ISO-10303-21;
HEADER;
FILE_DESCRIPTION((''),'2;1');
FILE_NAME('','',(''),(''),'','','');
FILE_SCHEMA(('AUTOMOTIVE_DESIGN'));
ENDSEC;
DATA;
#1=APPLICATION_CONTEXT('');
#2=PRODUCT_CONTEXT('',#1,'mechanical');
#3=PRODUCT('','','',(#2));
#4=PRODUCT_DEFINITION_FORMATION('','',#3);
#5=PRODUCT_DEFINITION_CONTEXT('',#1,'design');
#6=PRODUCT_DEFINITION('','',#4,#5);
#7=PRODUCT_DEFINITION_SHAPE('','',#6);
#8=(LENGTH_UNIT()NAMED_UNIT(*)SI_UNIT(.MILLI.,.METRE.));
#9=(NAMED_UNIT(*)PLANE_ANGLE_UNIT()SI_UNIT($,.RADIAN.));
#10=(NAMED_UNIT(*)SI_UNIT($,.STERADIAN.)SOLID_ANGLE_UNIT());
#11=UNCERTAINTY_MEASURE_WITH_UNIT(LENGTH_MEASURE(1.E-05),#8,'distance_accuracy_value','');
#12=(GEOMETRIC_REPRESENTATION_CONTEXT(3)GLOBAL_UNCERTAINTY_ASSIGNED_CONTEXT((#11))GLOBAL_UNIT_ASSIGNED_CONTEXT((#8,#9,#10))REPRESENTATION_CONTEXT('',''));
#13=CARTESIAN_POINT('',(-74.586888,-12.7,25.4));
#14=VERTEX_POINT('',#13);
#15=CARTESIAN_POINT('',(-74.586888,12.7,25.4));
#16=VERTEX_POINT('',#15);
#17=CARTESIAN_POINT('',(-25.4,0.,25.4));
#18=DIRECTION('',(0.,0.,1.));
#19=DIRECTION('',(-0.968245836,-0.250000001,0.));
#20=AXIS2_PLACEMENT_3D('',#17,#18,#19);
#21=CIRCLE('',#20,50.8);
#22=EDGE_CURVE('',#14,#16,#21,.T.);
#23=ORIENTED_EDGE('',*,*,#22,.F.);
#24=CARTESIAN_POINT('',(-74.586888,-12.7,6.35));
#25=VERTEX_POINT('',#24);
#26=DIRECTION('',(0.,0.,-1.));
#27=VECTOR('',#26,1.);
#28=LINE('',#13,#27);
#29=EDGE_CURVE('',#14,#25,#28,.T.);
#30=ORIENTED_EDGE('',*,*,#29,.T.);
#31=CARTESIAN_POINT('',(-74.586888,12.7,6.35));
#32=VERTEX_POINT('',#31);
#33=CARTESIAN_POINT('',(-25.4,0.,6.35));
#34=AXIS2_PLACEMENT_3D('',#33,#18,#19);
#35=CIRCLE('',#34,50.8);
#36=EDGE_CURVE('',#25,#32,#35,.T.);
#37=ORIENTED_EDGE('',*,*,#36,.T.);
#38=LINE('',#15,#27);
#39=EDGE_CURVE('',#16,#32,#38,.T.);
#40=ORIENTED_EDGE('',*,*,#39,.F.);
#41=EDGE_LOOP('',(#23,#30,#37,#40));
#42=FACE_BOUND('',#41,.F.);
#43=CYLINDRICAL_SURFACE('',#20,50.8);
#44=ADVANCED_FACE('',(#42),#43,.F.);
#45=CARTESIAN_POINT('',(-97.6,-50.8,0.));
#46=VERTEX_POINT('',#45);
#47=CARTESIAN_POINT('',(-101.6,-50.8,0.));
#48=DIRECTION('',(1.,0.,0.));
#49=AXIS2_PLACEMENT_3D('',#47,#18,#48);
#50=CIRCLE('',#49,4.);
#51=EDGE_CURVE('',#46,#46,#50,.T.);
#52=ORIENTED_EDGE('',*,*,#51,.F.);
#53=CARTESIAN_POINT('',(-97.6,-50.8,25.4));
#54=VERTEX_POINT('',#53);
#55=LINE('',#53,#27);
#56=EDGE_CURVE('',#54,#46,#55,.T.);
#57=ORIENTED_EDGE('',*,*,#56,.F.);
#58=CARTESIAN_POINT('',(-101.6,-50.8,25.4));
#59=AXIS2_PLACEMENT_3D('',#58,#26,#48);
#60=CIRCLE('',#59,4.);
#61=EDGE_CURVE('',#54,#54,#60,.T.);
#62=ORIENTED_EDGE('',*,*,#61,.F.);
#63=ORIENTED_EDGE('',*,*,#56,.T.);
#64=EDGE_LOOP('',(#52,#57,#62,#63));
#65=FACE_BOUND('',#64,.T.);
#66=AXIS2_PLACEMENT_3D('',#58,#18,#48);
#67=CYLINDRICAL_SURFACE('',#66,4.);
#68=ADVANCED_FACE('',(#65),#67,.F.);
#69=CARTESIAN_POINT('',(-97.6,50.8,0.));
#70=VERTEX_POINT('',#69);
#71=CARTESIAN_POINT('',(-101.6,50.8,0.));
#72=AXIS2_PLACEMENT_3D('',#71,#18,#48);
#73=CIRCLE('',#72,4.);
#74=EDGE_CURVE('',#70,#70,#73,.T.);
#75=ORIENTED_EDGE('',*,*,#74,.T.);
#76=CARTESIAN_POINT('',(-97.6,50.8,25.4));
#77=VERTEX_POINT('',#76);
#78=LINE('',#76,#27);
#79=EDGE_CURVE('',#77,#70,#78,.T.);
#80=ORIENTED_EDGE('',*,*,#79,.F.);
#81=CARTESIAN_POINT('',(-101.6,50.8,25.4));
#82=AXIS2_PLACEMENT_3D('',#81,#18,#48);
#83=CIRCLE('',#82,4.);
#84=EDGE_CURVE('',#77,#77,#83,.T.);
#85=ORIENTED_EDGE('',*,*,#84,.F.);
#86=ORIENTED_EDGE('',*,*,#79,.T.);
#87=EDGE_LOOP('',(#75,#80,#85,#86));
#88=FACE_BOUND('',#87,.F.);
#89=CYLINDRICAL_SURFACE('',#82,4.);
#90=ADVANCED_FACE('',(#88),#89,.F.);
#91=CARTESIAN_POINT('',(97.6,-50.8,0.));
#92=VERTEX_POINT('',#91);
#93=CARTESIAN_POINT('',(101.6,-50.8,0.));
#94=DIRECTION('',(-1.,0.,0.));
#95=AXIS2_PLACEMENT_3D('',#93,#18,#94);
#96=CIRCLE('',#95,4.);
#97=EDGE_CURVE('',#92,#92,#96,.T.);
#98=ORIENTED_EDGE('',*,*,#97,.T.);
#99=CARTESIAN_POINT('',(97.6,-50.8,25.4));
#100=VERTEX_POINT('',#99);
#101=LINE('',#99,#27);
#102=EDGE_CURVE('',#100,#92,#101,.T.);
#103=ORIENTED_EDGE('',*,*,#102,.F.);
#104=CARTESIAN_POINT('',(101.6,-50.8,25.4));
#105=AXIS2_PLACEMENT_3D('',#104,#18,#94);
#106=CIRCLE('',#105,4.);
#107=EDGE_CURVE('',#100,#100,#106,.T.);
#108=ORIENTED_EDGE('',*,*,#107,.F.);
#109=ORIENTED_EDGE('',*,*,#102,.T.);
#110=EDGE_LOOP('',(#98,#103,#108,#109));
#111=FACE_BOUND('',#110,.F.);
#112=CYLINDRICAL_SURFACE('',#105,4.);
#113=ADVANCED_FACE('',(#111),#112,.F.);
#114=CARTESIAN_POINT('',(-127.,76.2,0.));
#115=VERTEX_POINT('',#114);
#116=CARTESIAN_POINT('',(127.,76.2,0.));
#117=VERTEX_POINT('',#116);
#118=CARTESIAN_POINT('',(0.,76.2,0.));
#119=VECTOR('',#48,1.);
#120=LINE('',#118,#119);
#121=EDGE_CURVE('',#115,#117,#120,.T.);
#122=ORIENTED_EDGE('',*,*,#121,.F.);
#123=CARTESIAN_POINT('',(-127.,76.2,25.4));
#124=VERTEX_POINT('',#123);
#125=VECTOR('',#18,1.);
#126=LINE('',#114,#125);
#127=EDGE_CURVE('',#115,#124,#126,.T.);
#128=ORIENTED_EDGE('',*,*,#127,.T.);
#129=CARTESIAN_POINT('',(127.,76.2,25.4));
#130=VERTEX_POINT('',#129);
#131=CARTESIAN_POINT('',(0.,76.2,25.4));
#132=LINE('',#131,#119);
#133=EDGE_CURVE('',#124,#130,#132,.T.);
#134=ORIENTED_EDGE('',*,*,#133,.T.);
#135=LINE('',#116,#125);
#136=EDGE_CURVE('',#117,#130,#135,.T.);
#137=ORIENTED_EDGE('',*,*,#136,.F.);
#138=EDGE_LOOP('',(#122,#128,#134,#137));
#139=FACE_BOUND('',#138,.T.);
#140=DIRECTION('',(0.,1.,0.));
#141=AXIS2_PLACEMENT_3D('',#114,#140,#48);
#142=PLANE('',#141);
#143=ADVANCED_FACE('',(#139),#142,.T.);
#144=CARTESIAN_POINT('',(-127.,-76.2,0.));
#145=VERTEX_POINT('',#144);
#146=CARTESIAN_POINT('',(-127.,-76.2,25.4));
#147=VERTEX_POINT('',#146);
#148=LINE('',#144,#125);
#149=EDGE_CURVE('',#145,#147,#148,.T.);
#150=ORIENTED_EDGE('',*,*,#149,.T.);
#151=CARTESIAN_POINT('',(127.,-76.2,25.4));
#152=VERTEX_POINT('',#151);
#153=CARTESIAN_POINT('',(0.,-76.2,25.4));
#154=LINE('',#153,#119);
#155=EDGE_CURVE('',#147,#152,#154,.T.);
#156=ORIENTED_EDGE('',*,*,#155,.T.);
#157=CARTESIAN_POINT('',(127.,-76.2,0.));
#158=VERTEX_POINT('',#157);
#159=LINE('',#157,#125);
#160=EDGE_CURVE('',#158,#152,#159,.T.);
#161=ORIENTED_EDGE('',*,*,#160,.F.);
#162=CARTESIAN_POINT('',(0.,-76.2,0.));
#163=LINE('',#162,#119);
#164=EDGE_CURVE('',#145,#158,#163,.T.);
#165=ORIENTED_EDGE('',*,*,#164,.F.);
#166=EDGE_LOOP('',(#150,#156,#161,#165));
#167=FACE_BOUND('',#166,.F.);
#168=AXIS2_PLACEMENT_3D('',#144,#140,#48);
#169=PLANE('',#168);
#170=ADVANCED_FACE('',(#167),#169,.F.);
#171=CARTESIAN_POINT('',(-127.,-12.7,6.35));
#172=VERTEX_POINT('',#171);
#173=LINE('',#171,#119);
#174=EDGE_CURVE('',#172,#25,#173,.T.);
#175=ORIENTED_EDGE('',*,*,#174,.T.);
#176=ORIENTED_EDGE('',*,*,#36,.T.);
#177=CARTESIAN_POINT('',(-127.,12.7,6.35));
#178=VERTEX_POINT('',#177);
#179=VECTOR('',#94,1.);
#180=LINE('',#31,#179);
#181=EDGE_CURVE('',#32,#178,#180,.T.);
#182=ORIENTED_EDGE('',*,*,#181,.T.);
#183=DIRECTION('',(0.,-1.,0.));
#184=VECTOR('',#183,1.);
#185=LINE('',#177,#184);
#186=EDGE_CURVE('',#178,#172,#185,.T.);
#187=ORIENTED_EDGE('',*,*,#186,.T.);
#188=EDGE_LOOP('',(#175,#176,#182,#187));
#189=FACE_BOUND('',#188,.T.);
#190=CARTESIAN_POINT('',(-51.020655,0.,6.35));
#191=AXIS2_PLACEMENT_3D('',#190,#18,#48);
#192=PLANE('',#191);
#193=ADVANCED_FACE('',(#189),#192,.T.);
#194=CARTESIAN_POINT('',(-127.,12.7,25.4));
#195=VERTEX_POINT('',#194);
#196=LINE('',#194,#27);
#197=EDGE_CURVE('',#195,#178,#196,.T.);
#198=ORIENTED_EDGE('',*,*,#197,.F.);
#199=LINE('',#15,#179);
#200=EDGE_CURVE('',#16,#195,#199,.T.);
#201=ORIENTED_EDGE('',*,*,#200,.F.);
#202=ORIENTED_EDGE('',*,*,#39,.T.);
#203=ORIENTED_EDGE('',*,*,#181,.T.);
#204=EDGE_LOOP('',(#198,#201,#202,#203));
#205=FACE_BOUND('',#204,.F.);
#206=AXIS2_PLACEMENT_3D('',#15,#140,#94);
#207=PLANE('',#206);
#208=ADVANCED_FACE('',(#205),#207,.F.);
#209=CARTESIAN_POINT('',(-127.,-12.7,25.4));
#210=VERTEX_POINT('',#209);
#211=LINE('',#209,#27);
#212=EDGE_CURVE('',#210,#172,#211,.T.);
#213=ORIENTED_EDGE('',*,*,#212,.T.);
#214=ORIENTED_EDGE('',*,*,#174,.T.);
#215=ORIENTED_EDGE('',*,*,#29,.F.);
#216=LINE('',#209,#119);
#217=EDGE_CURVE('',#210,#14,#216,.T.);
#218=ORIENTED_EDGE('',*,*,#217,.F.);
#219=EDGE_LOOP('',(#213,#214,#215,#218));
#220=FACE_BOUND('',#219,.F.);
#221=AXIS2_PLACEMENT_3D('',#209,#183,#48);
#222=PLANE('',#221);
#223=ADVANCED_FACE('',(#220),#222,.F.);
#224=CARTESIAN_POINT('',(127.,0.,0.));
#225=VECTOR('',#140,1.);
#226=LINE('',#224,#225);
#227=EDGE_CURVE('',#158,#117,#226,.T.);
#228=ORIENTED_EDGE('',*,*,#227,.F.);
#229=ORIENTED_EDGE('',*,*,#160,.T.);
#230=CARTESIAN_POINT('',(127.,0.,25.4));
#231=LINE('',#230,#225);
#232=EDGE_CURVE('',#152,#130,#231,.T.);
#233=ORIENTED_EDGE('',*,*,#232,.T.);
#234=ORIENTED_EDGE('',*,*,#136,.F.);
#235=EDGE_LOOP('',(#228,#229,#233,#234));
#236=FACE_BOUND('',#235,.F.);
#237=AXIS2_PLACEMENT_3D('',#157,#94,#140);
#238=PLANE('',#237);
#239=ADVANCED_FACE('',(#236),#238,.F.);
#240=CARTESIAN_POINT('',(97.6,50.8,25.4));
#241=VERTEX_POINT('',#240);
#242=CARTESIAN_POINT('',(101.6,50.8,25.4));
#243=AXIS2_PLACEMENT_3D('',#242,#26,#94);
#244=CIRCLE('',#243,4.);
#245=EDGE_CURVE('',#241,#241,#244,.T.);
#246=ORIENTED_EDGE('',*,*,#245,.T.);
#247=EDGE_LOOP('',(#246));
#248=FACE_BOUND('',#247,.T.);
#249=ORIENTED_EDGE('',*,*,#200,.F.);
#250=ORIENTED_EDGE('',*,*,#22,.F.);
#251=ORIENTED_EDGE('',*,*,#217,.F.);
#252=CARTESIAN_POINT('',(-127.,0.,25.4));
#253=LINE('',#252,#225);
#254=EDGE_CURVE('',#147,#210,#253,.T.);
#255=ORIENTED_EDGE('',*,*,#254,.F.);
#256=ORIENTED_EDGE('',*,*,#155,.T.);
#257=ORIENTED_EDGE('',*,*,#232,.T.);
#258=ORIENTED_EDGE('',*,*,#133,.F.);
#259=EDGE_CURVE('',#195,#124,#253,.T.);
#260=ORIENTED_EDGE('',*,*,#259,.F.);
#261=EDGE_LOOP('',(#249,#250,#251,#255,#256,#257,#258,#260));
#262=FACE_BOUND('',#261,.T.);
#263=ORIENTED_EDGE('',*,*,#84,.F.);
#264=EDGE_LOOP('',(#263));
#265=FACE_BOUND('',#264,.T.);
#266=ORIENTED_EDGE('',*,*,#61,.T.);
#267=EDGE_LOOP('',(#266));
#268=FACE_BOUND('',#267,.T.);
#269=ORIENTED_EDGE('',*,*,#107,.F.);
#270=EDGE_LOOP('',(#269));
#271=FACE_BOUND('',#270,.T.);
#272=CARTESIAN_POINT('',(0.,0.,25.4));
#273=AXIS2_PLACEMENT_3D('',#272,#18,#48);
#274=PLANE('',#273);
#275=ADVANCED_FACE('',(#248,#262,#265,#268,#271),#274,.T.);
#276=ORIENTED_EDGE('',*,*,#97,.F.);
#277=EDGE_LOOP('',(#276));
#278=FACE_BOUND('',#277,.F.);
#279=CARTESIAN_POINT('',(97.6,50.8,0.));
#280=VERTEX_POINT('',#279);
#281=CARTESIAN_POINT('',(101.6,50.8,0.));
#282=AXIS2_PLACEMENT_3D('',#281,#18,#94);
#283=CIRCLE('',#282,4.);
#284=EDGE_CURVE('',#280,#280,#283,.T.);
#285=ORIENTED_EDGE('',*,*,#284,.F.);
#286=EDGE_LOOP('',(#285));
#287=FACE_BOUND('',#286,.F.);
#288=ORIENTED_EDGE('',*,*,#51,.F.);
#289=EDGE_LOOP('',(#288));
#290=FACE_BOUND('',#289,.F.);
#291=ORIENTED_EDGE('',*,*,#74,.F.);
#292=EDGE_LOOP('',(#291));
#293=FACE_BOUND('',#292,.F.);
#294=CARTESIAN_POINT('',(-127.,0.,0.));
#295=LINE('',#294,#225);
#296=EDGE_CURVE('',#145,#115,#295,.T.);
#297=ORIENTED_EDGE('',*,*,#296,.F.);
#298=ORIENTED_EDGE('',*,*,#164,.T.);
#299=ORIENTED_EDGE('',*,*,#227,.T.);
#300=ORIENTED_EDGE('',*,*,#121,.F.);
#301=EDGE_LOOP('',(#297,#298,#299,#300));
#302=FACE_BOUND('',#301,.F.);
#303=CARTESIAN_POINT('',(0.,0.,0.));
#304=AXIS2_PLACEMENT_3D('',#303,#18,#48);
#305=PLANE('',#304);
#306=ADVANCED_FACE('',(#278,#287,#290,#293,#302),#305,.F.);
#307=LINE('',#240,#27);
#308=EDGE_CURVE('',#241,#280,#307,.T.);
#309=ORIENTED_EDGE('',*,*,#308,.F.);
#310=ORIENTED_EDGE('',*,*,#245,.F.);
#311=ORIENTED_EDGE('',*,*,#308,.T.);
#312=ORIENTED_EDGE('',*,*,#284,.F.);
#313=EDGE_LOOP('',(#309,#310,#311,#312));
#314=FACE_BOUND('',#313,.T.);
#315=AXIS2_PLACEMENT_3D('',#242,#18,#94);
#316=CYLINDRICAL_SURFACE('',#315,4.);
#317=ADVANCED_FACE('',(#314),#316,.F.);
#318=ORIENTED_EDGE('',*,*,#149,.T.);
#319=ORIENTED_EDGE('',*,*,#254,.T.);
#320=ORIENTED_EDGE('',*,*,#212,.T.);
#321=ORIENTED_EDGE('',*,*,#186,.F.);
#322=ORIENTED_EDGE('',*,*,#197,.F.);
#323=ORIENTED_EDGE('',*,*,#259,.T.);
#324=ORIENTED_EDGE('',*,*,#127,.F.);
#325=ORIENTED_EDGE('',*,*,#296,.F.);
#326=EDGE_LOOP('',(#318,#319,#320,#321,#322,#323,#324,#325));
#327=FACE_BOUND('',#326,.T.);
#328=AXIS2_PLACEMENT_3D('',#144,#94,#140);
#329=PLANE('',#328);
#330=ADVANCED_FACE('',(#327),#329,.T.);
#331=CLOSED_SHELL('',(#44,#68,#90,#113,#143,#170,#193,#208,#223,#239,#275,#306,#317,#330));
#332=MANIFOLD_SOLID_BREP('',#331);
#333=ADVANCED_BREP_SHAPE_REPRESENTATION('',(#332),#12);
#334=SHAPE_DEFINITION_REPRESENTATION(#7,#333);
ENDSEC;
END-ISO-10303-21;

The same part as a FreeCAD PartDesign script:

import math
import FreeCAD as App
import Part
import Sketcher
from FreeCAD import Vector
Q = App.Units.Quantity


def add_polygon(sketch, points):
    """Adds a closed chain of lines whose ends are joined by coincident constraints."""
    first, n = sketch.GeometryCount, len(points)
    for a, b in zip(points, points[1:] + points[:1]):
        sketch.addGeometry(Part.LineSegment(App.Vector(*a, 0), App.Vector(*b, 0)), False)
    for i in range(n):
        sketch.addConstraint(Sketcher.Constraint("Coincident", first + i, 2, first + (i + 1) % n, 1))

doc = App.newDocument("Part")
body = doc.addObject("PartDesign::Body", "Body")

sketch1 = body.newObject("Sketcher::SketchObject", "Sketch")
sketch1.AttachmentSupport = (doc.getObject("XY_Plane"), [""])
sketch1.MapMode = "FlatFace"
add_polygon(sketch1, [(-127, 76), (-127, -76), (127, -76), (127, 76)])
sketch1.addConstraint(Sketcher.Constraint("Vertical", 0))
sketch1.addConstraint(Sketcher.Constraint("Horizontal", 1))
sketch1.addConstraint(Sketcher.Constraint("Vertical", 2))
sketch1.addConstraint(Sketcher.Constraint("Horizontal", 3))
sketch1.addConstraint(Sketcher.Constraint("Symmetric", 0, 2, 2, 2, -1, 1))
sketch1.addConstraint(Sketcher.Constraint("DistanceX", 1, 1, 1, 2, Q("10 in")))
sketch1.addConstraint(Sketcher.Constraint("DistanceY", 0, 2, 0, 1, Q("6 in")))
pad1 = body.newObject("PartDesign::Pad", "Pad")
pad1.Profile = sketch1
pad1.Length = Q("1 in")

sketch2 = body.newObject("Sketcher::SketchObject", "Sketch001")
sketch2.AttachmentSupport = (doc.getObject("XY_Plane"), [""])
sketch2.MapMode = "FlatFace"
sketch2.AttachmentOffset = App.Placement(Vector(0, 0, 1 * 25.4), App.Rotation())
sketch2.addGeometry(Part.Circle(Vector(-101.6, 50.8, 0), Vector(0, 0, 1), 4), False)
sketch2.addConstraint(Sketcher.Constraint("DistanceX", 0, 3, -1, 1, Q("4 in")))
sketch2.addConstraint(Sketcher.Constraint("DistanceY", -1, 1, 0, 3, Q("2 in")))
sketch2.addConstraint(Sketcher.Constraint("Diameter", 0, 8.0))
pocket1 = body.newObject("PartDesign::Pocket", "Pocket")
pocket1.Profile = sketch2
pocket1.Type = "ThroughAll"

sketch3 = body.newObject("Sketcher::SketchObject", "Sketch002")
sketch3.AttachmentSupport = (doc.getObject("XY_Plane"), [""])
sketch3.MapMode = "FlatFace"
sketch3.AttachmentOffset = App.Placement(Vector(0, 0, 1 * 25.4), App.Rotation())
sketch3.addGeometry(Part.Circle(Vector(101.6, 50.8, 0), Vector(0, 0, 1), 4), False)
sketch3.addConstraint(Sketcher.Constraint("DistanceX", -1, 1, 0, 3, Q("4 in")))
sketch3.addConstraint(Sketcher.Constraint("DistanceY", -1, 1, 0, 3, Q("2 in")))
sketch3.addConstraint(Sketcher.Constraint("Diameter", 0, 8.0))
pocket2 = body.newObject("PartDesign::Pocket", "Pocket001")
pocket2.Profile = sketch3
pocket2.Type = "ThroughAll"
doc.recompute()

mirrored = body.newObject("PartDesign::Mirrored", "Mirrored")
mirrored.Originals = [pocket1, pocket2]
mirrored.MirrorPlane = (doc.getObject("XZ_Plane"), [""])
body.Tip = mirrored

sketch4 = body.newObject("Sketcher::SketchObject", "Sketch003")
sketch4.AttachmentSupport = (doc.getObject("XY_Plane"), [""])
sketch4.MapMode = "FlatFace"
sketch4.AttachmentOffset = App.Placement(Vector(0, 0, 1 * 25.4), App.Rotation())
sketch4.addGeometry(Part.LineSegment(Vector(-127, -13, 0), Vector(-75, -13, 0)), False)
sketch4.addGeometry(Part.ArcOfCircle(Part.Circle(Vector(-25, 0, 0), Vector(0, 0, 1), 51), math.radians(-166), math.radians(166)), False)
sketch4.addGeometry(Part.LineSegment(Vector(-75, 13, 0), Vector(-127, 13, 0)), False)
sketch4.addGeometry(Part.LineSegment(Vector(-127, 13, 0), Vector(-127, -13, 0)), False)
sketch4.addConstraint(Sketcher.Constraint("Coincident", 0, 2, 1, 1))
sketch4.addConstraint(Sketcher.Constraint("Coincident", 1, 2, 2, 1))
sketch4.addConstraint(Sketcher.Constraint("Coincident", 2, 2, 3, 1))
sketch4.addConstraint(Sketcher.Constraint("Coincident", 3, 2, 0, 1))
sketch4.addConstraint(Sketcher.Constraint("Horizontal", 0))
sketch4.addConstraint(Sketcher.Constraint("Horizontal", 2))
sketch4.addConstraint(Sketcher.Constraint("Vertical", 3))
sketch4.addConstraint(Sketcher.Constraint("Symmetric", 0, 2, 1, 2, -1))
sketch4.addConstraint(Sketcher.Constraint("Radius", 1, Q("2 in")))
sketch4.addConstraint(Sketcher.Constraint("DistanceY", 3, 2, 3, 1, Q("1 in")))
sketch4.addConstraint(Sketcher.Constraint("DistanceX", 1, 3, -1, 1, Q("1 in")))
sketch4.addConstraint(Sketcher.Constraint("DistanceX", 2, 2, -1, 1, Q("5 in")))
pocket3 = body.newObject("PartDesign::Pocket", "Pocket002")
pocket3.Profile = sketch4
pocket3.Length = Q("0.75 in")

doc.recompute()
